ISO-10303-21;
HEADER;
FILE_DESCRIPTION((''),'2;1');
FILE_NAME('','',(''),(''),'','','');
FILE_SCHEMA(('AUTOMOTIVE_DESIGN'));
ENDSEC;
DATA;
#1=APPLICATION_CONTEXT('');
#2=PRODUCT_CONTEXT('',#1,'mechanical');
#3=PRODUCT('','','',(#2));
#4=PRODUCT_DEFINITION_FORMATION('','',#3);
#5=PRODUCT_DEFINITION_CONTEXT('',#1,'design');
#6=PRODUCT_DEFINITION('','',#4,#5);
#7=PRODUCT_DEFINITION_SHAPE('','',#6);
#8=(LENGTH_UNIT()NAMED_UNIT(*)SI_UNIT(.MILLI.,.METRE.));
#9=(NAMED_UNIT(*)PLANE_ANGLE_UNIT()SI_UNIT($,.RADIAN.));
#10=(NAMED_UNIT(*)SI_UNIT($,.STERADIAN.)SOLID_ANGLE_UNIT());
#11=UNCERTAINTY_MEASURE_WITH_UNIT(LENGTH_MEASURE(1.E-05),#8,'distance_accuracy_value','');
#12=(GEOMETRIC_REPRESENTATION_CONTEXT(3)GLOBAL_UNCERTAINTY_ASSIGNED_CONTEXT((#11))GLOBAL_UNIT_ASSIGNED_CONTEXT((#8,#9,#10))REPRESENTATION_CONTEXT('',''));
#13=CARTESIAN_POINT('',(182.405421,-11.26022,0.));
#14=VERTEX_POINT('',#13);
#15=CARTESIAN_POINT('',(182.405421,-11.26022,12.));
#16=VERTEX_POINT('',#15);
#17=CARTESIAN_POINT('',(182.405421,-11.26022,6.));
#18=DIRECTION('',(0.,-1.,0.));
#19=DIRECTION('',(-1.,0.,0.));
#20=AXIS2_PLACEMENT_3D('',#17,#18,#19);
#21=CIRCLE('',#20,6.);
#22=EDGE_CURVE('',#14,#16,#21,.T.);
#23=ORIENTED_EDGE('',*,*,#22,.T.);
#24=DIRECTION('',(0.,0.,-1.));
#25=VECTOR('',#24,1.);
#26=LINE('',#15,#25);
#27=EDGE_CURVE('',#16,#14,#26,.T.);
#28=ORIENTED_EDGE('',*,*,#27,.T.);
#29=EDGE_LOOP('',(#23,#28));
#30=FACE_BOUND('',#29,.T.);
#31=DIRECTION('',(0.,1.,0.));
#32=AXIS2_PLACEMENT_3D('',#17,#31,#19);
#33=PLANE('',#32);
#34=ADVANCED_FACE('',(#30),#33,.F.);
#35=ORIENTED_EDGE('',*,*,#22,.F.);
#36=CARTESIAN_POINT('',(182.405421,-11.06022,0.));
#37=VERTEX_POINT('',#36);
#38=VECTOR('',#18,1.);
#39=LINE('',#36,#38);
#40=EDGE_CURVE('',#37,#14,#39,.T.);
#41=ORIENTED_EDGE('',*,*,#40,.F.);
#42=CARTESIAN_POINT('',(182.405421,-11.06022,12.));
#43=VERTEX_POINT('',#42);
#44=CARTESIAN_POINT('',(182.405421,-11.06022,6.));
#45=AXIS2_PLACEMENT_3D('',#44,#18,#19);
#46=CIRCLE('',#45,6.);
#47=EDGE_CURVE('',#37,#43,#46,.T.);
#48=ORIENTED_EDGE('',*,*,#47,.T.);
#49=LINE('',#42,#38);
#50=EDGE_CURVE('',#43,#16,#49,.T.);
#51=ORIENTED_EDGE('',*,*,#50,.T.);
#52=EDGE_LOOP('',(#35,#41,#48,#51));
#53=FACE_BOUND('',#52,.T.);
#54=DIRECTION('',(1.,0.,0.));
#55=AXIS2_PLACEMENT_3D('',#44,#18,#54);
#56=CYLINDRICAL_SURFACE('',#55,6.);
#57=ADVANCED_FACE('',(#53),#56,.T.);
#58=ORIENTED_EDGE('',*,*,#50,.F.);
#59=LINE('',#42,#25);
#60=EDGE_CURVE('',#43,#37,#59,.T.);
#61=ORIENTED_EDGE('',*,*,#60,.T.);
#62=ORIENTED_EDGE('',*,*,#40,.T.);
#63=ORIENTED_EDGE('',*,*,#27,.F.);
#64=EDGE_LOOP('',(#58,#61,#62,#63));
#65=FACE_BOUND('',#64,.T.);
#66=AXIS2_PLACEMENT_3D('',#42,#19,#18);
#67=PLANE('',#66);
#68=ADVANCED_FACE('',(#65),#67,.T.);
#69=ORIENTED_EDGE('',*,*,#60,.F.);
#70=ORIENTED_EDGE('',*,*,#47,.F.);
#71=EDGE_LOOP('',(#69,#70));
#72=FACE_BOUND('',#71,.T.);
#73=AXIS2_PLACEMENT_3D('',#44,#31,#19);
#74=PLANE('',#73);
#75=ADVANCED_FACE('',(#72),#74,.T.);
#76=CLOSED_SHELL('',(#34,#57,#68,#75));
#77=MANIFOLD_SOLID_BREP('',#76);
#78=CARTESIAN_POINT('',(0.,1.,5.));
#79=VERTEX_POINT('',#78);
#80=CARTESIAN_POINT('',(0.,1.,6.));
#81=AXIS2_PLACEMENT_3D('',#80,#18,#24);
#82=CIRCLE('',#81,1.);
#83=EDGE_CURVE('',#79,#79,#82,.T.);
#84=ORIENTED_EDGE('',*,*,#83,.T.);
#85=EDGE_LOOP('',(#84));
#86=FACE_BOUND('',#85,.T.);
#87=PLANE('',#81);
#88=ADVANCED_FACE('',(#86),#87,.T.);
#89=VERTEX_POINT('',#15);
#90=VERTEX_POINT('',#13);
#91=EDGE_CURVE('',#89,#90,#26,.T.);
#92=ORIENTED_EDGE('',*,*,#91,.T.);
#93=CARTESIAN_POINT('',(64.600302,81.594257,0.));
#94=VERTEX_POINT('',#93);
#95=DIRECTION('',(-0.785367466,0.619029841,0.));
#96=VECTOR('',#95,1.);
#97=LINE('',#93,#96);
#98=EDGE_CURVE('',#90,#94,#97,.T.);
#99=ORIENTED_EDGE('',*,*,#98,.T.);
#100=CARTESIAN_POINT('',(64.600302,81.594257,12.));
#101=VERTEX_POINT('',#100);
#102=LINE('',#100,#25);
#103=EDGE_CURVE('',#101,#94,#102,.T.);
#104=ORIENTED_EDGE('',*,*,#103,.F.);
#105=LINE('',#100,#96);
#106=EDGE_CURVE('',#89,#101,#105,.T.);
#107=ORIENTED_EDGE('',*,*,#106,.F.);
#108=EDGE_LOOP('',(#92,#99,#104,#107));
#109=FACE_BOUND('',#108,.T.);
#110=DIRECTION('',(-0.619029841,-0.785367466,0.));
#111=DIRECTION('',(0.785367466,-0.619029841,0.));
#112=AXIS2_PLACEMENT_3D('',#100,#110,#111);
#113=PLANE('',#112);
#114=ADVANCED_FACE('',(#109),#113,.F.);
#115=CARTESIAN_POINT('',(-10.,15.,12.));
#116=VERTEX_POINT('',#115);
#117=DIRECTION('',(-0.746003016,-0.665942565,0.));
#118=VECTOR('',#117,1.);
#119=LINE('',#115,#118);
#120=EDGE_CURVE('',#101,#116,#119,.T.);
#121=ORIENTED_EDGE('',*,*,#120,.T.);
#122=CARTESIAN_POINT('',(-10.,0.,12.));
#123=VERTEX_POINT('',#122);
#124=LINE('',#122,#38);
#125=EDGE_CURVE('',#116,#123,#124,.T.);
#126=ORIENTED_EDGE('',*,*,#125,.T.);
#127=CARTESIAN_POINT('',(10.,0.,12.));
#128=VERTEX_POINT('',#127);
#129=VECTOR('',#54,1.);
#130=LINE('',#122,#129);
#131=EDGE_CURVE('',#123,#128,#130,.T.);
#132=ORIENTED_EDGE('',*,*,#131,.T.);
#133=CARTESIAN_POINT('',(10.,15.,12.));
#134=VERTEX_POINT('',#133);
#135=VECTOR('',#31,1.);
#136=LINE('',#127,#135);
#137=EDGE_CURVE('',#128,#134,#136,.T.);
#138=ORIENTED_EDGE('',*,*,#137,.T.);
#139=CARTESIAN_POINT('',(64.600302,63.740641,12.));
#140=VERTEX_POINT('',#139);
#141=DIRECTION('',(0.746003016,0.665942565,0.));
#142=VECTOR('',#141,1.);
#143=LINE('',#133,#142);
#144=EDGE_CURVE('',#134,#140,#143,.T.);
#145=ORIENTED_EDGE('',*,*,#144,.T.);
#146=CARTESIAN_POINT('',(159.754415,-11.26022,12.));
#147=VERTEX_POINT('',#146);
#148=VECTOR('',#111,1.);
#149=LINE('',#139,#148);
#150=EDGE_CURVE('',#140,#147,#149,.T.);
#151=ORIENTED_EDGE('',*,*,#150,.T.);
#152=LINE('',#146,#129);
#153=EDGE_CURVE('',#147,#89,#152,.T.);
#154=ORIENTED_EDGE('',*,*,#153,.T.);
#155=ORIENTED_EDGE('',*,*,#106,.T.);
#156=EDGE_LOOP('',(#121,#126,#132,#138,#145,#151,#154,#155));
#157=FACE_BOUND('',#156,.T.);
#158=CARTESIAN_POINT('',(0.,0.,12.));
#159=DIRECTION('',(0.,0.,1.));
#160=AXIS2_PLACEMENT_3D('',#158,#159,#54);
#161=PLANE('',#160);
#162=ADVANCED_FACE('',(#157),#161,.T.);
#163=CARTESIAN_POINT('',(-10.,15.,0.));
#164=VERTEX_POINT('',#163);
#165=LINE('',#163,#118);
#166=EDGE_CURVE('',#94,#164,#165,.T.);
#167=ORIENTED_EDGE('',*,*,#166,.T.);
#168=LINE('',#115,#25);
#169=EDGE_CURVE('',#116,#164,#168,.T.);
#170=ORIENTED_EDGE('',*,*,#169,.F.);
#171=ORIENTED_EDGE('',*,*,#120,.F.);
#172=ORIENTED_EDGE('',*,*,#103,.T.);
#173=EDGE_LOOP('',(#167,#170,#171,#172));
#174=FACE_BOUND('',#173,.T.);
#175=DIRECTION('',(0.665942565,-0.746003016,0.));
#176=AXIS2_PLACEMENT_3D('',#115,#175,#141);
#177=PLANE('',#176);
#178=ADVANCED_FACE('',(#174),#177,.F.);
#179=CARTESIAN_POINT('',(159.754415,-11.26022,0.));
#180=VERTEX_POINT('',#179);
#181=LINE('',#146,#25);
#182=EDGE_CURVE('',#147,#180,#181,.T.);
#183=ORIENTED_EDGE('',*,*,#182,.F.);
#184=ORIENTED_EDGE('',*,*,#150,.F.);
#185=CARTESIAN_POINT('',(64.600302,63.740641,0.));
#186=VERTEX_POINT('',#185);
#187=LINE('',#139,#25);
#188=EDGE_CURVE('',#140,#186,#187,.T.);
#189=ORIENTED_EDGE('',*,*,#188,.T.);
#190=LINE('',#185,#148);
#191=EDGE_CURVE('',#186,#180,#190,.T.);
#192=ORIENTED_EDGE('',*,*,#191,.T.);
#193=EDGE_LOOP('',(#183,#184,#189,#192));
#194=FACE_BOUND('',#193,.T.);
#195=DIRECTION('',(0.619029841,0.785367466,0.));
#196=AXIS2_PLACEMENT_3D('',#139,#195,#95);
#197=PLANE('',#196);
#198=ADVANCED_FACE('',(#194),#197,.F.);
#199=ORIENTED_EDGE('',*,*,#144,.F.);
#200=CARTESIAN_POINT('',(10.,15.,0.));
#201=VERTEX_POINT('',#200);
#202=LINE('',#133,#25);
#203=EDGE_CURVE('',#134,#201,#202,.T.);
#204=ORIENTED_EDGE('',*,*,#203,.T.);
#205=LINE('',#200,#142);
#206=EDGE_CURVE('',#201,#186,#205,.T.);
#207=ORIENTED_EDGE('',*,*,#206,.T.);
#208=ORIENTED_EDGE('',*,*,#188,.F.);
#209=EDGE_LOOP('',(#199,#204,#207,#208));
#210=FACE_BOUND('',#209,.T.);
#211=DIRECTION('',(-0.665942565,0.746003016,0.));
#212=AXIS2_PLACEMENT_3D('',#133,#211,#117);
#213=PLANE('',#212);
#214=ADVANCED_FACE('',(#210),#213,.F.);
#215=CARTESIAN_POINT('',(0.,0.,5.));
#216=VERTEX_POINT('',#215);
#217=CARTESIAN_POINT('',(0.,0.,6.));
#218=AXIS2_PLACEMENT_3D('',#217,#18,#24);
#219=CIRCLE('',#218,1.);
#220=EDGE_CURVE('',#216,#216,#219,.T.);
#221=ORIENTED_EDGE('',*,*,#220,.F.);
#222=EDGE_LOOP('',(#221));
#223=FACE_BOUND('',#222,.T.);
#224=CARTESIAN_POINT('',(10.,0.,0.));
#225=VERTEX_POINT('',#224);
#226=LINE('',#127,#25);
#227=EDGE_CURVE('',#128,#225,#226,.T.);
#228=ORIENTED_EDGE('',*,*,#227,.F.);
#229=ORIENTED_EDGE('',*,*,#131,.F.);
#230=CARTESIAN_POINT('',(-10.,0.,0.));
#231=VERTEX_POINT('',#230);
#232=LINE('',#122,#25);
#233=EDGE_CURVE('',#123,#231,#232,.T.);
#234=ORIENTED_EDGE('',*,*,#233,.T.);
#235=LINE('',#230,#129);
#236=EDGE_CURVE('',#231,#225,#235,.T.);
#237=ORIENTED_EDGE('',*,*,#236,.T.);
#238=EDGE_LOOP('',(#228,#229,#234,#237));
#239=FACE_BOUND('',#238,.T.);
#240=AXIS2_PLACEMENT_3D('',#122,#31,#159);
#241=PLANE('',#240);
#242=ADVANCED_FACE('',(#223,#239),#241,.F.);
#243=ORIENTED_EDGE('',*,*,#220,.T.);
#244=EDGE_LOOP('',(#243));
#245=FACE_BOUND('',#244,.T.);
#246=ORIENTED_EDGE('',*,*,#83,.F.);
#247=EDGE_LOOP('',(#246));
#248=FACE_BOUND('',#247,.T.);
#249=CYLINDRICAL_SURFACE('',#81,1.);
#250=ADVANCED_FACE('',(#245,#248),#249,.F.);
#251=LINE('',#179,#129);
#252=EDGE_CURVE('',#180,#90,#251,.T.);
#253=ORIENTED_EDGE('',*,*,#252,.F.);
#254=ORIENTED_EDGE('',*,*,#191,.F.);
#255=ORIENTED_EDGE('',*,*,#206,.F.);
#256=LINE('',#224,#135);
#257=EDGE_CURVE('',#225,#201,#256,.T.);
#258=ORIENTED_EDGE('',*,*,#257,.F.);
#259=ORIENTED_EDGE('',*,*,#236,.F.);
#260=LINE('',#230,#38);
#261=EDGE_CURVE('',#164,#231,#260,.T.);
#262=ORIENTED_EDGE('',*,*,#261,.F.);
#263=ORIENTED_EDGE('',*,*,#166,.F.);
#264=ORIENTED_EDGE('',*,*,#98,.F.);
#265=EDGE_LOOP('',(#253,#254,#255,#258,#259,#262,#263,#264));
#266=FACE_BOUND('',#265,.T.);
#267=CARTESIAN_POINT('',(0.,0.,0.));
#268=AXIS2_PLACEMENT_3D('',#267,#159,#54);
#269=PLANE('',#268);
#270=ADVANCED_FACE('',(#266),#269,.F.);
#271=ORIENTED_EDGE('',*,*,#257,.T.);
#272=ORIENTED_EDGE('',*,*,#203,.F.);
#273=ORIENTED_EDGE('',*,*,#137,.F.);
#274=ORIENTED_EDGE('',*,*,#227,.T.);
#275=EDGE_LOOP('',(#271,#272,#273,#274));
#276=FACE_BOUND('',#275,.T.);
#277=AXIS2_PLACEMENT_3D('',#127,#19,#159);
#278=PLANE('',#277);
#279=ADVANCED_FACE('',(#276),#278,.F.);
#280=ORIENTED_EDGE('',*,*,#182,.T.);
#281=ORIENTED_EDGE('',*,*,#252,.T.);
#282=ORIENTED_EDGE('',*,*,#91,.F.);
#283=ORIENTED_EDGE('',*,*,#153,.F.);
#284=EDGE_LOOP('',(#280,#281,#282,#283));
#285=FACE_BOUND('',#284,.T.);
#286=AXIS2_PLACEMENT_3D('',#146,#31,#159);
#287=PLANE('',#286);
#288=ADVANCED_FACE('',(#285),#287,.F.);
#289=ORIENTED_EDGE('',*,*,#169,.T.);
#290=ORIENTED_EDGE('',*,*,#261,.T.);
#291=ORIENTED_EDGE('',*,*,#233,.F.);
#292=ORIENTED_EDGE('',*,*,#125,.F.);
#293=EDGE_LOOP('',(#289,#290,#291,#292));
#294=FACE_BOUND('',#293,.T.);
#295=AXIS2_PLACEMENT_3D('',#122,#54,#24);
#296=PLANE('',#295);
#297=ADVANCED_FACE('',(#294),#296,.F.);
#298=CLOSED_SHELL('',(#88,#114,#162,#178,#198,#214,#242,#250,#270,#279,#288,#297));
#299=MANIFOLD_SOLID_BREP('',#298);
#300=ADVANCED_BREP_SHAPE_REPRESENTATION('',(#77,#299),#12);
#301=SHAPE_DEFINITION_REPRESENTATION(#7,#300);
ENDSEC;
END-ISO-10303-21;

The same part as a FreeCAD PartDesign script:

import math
import FreeCAD as App
import Part
import Sketcher

doc = App.newDocument("Part")
body = doc.addObject("PartDesign::Body", "Body")

sketch1 = body.newObject("Sketcher::SketchObject", "Sketch")
sketch1.AttachmentSupport = (doc.getObject("XY_Plane"), [""])
sketch1.MapMode = "FlatFace"
sketch1.addGeometry([
    Part.LineSegment(App.Vector(-10, 15, 0), App.Vector(-10, 0, 0)),
    Part.LineSegment(App.Vector(-10, 0, 0), App.Vector(10, 0, 0)),
    Part.LineSegment(App.Vector(10, 0, 0), App.Vector(10, 15, 0)),
    Part.LineSegment(App.Vector(10, 15, 0), App.Vector(64.600302, 63.740641, 0)),
    Part.LineSegment(App.Vector(64.600302, 63.740641, 0), App.Vector(159.754415, -11.26022, 0)),
    Part.LineSegment(App.Vector(159.754415, -11.26022, 0), App.Vector(182.405421, -11.26022, 0)),
    Part.LineSegment(App.Vector(182.405421, -11.26022, 0), App.Vector(64.600302, 81.594257, 0)),
    Part.LineSegment(App.Vector(64.600302, 81.594257, 0), App.Vector(-10, 15, 0)),
], False)
sketch1.addConstraint([
    Sketcher.Constraint("Coincident", 0, 2, 1, 1),
    Sketcher.Constraint("Coincident", 1, 2, 2, 1),
    Sketcher.Constraint("Coincident", 2, 2, 3, 1),
    Sketcher.Constraint("Coincident", 3, 2, 4, 1),
    Sketcher.Constraint("Coincident", 4, 2, 5, 1),
    Sketcher.Constraint("Coincident", 5, 2, 6, 1),
    Sketcher.Constraint("Coincident", 6, 2, 7, 1),
    Sketcher.Constraint("Coincident", 7, 2, 0, 1),
    Sketcher.Constraint("Vertical", 0),
    Sketcher.Constraint("Horizontal", 1),
    Sketcher.Constraint("Vertical", 2),
    Sketcher.Constraint("Horizontal", 5),
    Sketcher.Constraint("Symmetric", 0, 2, 1, 2, -1, 1),
    Sketcher.Constraint("Parallel", 4, 6),
    Sketcher.Constraint("Parallel", 3, 7),
    Sketcher.Constraint("Horizontal", 2, 2, 7, 2),
    Sketcher.Constraint("Vertical", 3, 2, 6, 2),
    Sketcher.Constraint("DistanceX", 1, 1, 1, 2, 20.0),
    Sketcher.Constraint("DistanceY", 0, 2, 0, 1, 15.0),
    Sketcher.Constraint("Distance", 6, 150.0),
    Sketcher.Constraint("Distance", 7, 100.0),
    Sketcher.Constraint("DistanceX", -1, 1, 3, 2, 64.600302),
    Sketcher.Constraint("DistanceX", 5, 1, 5, 2, 22.651007),
])
pad1 = body.newObject("PartDesign::Pad", "Pad")
pad1.Profile = sketch1
pad1.Length = 12

sketch2 = body.newObject("Sketcher::SketchObject", "Sketch001")
sketch2.AttachmentSupport = (doc.getObject("XZ_Plane"), [""])
sketch2.MapMode = "FlatFace"
sketch2.addGeometry(Part.Circle(App.Vector(0, 6, 0), App.Vector(0, 0, 1), 1), False)
sketch2.addConstraint([
    Sketcher.Constraint("PointOnObject", 0, 3, -2),
    Sketcher.Constraint("Diameter", 0, 2.0),
    Sketcher.Constraint("DistanceY", -1, 1, 0, 3, 6.0),
])
pocket1 = body.newObject("PartDesign::Pocket", "Pocket")
pocket1.Profile = sketch2
pocket1.Length = 1
body2 = doc.addObject("PartDesign::Body", "Body001")

sketch3 = body2.newObject("Sketcher::SketchObject", "Sketch002")
sketch3.AttachmentSupport = (doc.getObject("XZ_Plane001"), [""])
sketch3.MapMode = "FlatFace"
sketch3.AttachmentOffset = App.Placement(App.Vector(0, 0, 11.26022), App.Rotation())
sketch3.addGeometry([
    Part.LineSegment(App.Vector(182.405421, 12, 0), App.Vector(182.405421, 0, 0)),
    Part.ArcOfCircle(Part.Circle(App.Vector(182.405421, 6, 0), App.Vector(0, 0, 1), 6), math.radians(-90), math.radians(90)),
], False)
sketch3.addConstraint([
    Sketcher.Constraint("Coincident", 0, 1, 1, 2),
    Sketcher.Constraint("Coincident", 1, 1, 0, 2),
    Sketcher.Constraint("Vertical", 0),
    Sketcher.Constraint("PointOnObject", 1, 1, -1),
    Sketcher.Constraint("Vertical", 1, 3, 0, 1),
    Sketcher.Constraint("Radius", 1, 6.0),
    Sketcher.Constraint("DistanceX", -1, 1, 1, 3, 182.405421),
])
pad2 = body2.newObject("PartDesign::Pad", "Pad001")
pad2.Profile = sketch3
pad2.Length = 0.2
pad2.Reversed = True

doc.recompute()
